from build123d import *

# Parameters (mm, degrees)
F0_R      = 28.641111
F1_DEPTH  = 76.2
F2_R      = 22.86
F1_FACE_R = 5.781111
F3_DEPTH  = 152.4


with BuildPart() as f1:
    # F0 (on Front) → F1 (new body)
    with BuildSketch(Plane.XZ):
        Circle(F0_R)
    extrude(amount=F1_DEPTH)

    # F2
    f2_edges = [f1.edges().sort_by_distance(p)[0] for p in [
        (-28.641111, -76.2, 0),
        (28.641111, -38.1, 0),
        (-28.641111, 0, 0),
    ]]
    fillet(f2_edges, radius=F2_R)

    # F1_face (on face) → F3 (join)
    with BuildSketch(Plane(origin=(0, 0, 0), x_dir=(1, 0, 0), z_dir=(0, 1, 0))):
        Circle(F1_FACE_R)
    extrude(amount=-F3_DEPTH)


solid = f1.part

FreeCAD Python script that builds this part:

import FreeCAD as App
import Part
import Sketcher
from FreeCAD import Vector
Q = App.Units.Quantity

doc = App.newDocument("Part")
body = doc.addObject("PartDesign::Body", "Body")

sketch1 = doc.addObject("Sketcher::SketchObject", "Sketch")
body.addObject(sketch1)
sketch1.AttachmentSupport = (doc.XZ_Plane, [""])
sketch1.MapMode = "FlatFace"
sketch1.addGeometry(Part.Circle(Vector(0, 0, 0), Vector(0, 0, 1), 29), False)
sketch1.addConstraint([
    Sketcher.Constraint("Coincident", 0, 3, -1, 1),
    Sketcher.Constraint("Diameter", 0, 57.282222),
])
pad1 = doc.addObject("PartDesign::Pad", "Pad")
body.addObject(pad1)
pad1.Profile = sketch1
pad1.Length = Q("3 in")
doc.recompute()

fillet = doc.addObject("PartDesign::Fillet", "Fillet")
body.addObject(fillet)
fillet.Base = (pad1, ["Edge1"])
fillet.UseAllEdges = True
fillet.Radius = Q("0.9 in")

sketch2 = doc.addObject("Sketcher::SketchObject", "Sketch001")
body.addObject(sketch2)
sketch2.AttachmentSupport = (doc.XZ_Plane, [""])
sketch2.MapMode = "FlatFace"
sketch2.addGeometry(Part.Circle(Vector(0, 0, 0), Vector(0, 0, 1), 6), False)
sketch2.addConstraint([
    Sketcher.Constraint("Coincident", 0, 3, -1, 1),
    Sketcher.Constraint("Diameter", 0, 11.562222),
])
pad2 = doc.addObject("PartDesign::Pad", "Pad001")
body.addObject(pad2)
pad2.Profile = sketch2
pad2.Length = Q("6 in")

doc.recompute()
